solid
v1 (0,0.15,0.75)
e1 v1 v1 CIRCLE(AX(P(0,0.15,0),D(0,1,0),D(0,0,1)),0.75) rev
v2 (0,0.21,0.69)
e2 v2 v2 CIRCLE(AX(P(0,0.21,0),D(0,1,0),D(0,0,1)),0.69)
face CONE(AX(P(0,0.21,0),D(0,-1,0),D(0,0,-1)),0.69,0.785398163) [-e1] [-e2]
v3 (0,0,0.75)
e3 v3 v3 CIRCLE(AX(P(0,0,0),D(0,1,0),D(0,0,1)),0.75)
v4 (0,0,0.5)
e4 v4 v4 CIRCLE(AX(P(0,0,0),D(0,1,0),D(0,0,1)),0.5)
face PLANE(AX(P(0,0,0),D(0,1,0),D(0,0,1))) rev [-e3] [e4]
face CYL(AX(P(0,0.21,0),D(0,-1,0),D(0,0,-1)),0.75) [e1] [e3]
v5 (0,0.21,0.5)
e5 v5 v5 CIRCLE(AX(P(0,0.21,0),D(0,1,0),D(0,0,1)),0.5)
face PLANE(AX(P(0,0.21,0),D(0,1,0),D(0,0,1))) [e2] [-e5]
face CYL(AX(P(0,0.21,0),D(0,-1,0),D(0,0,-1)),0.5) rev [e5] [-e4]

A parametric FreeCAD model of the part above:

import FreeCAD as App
import Part
import Sketcher

V = App.Vector


def edges_at(feature, points):
    """Names of the edges that pass closest to the given points."""
    edges = feature.Shape.Edges
    near = lambda p: min(range(len(edges)), key=lambda i: edges[i].distToShape(Part.Vertex(*p))[0])
    return sorted({f"Edge{near(p) + 1}" for p in points})

doc = App.newDocument("Part")
body = doc.addObject("PartDesign::Body", "Body")

# Sketch on XZ plane
sketch1 = body.newObject("Sketcher::SketchObject", "Sketch")
sketch1.AttachmentSupport = (doc.getObject("XZ_Plane"), [""])
sketch1.MapMode = "FlatFace"
sketch1.addGeometry([
    Part.Circle(V(0, 0, 0), V(0, 0, 1), 0.8),
    Part.Circle(V(0, 0, 0), V(0, 0, 1), 0.5),
], False)
sketch1.addConstraint([
    Sketcher.Constraint("Coincident", 0, 3, -1, 1),
    Sketcher.Constraint("Coincident", 1, 3, -1, 1),
    Sketcher.Constraint("Diameter", 1, 1.0),
    Sketcher.Constraint("Diameter", 0, 1.5),
])
pad1 = body.newObject("PartDesign::Pad", "Pad")
pad1.Profile = sketch1
pad1.Length = 0.21
pad1.Reversed = True
doc.recompute()

chamfer = body.newObject("PartDesign::Chamfer", "Chamfer")
chamfer.Base = (pad1, edges_at(pad1, [(-0.75, 0.21, 0)]))
chamfer.Size = 0.06

doc.recompute()
